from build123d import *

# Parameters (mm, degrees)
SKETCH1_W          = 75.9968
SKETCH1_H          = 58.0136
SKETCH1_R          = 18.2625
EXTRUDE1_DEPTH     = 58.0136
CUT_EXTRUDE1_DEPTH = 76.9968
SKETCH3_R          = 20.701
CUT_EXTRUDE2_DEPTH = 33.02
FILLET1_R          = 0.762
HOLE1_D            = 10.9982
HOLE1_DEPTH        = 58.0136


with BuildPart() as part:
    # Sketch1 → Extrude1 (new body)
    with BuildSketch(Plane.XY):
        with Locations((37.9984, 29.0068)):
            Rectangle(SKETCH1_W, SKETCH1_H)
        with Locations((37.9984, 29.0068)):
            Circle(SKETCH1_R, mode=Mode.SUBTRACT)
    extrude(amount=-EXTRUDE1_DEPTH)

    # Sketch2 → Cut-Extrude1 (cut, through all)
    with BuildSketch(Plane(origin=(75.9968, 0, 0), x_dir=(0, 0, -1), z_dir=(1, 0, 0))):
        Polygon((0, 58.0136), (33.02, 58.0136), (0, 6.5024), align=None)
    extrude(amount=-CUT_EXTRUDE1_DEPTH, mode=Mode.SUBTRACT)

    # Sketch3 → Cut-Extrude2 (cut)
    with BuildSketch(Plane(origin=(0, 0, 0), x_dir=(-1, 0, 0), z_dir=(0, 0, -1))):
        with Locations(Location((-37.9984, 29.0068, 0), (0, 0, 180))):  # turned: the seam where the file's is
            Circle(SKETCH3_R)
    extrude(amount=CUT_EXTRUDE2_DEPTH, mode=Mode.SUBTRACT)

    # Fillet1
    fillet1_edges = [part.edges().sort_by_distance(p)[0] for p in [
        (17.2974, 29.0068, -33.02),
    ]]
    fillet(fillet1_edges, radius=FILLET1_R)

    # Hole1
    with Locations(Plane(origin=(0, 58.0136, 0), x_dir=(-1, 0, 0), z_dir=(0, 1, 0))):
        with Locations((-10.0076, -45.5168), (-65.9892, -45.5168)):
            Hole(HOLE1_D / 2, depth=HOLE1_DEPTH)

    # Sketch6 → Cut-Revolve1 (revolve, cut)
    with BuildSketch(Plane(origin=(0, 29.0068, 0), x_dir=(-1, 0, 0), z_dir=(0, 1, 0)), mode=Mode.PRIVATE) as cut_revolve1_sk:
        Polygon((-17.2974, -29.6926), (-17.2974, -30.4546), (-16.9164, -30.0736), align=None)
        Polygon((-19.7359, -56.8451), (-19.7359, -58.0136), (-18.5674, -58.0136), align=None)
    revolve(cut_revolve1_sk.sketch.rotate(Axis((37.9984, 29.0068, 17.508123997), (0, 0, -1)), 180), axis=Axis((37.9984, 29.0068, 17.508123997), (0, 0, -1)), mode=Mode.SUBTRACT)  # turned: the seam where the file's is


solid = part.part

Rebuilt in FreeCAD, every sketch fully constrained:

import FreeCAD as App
import Part
import Sketcher

V = App.Vector
Q = App.Units.Quantity


def edges_at(feature, points):
    """Names of the edges that pass closest to the given points."""
    edges = feature.Shape.Edges
    near = lambda p: min(range(len(edges)), key=lambda i: edges[i].distToShape(Part.Vertex(*p))[0])
    return sorted({f"Edge{near(p) + 1}" for p in points})

doc = App.newDocument("Part")
body = doc.addObject("PartDesign::Body", "Body")

sketch1 = body.newObject("Sketcher::SketchObject", "Sketch")
sketch1.AttachmentSupport = (doc.getObject("XY_Plane"), [""])
sketch1.MapMode = "FlatFace"
sketch1.addGeometry([
    Part.LineSegment(V(0, 58, 0), V(0, 0, 0)),
    Part.LineSegment(V(0, 0, 0), V(76, 0, 0)),
    Part.LineSegment(V(76, 0, 0), V(76, 58, 0)),
    Part.LineSegment(V(76, 58, 0), V(0, 58, 0)),
    Part.Circle(V(38, 29, 0), V(0, 0, 1), 18),
], False)
sketch1.addConstraint([
    Sketcher.Constraint("Coincident", 0, 2, 1, 1),
    Sketcher.Constraint("Coincident", 1, 2, 2, 1),
    Sketcher.Constraint("Coincident", 2, 2, 3, 1),
    Sketcher.Constraint("Coincident", 3, 2, 0, 1),
    Sketcher.Constraint("Vertical", 0),
    Sketcher.Constraint("Horizontal", 1),
    Sketcher.Constraint("Vertical", 2),
    Sketcher.Constraint("Horizontal", 3),
    Sketcher.Constraint("Coincident", 0, 2, -1, 1),
    Sketcher.Constraint("Diameter", 4, Q("36.525 mm")),
    Sketcher.Constraint("DistanceX", 1, 1, 1, 2, Q("2.992 in")),
    Sketcher.Constraint("DistanceY", 0, 2, 0, 1, Q("2.284 in")),
    Sketcher.Constraint("DistanceX", -1, 1, 4, 3, Q("1.496 in")),
    Sketcher.Constraint("DistanceY", -1, 1, 4, 3, Q("1.142 in")),
])
pad1 = body.newObject("PartDesign::Pad", "Pad")
pad1.Profile = sketch1
pad1.Length = Q("2.284 in")
pad1.Reversed = True

sketch2 = body.newObject("Sketcher::SketchObject", "Sketch001")
sketch2.AttachmentSupport = (doc.getObject("YZ_Plane"), [""])
sketch2.MapMode = "FlatFace"
sketch2.AttachmentOffset = App.Placement(V(0, 0, 2.992 * 25.4), App.Rotation())
sketch2.addGeometry([
    Part.LineSegment(V(58, -33, 0), V(58, 0, 0)),
    Part.LineSegment(V(58, 0, 0), V(7, 0, 0)),
    Part.LineSegment(V(7, 0, 0), V(58, -33, 0)),
], False)
sketch2.addConstraint([
    Sketcher.Constraint("Coincident", 0, 2, 1, 1),
    Sketcher.Constraint("Coincident", 1, 2, 2, 1),
    Sketcher.Constraint("Coincident", 2, 2, 0, 1),
    Sketcher.Constraint("Vertical", 0),
    Sketcher.Constraint("Horizontal", 1),
    Sketcher.Constraint("PointOnObject", 0, 2, -1),
    Sketcher.Constraint("DistanceY", 0, 1, 0, 2, Q("1.3 in")),
    Sketcher.Constraint("DistanceX", 1, 2, 1, 1, Q("2.028 in")),
    Sketcher.Constraint("DistanceX", -1, 1, 0, 2, Q("2.284 in")),
])
pocket1 = body.newObject("PartDesign::Pocket", "Pocket")
pocket1.Profile = sketch2
pocket1.Type = "ThroughAll"

sketch3 = body.newObject("Sketcher::SketchObject", "Sketch002")
sketch3.AttachmentSupport = (doc.getObject("XY_Plane"), [""])
sketch3.MapMode = "FlatFace"
sketch3.addGeometry(Part.Circle(V(38, 29, 0), V(0, 0, 1), 21), False)
sketch3.addConstraint([
    Sketcher.Constraint("Diameter", 0, Q("1.63 in")),
    Sketcher.Constraint("DistanceX", -1, 1, 0, 3, Q("1.496 in")),
    Sketcher.Constraint("DistanceY", -1, 1, 0, 3, Q("1.142 in")),
])
pocket2 = body.newObject("PartDesign::Pocket", "Pocket001")
pocket2.Profile = sketch3
pocket2.Length = Q("1.3 in")
doc.recompute()

fillet = body.newObject("PartDesign::Fillet", "Fillet")
fillet.Base = (pocket2, edges_at(pocket2, [(17.297, 29.007, -33.02)]))
fillet.Radius = Q("0.03 in")

sketch4 = body.newObject("Sketcher::SketchObject", "Sketch003")
sketch4.AttachmentSupport = (doc.getObject("XZ_Plane"), [""])
sketch4.MapMode = "FlatFace"
sketch4.AttachmentOffset = App.Placement(V(0, 0, -2.284 * 25.4), App.Rotation())
sketch4.addGeometry([
    Part.Circle(V(10, -46, 0), V(0, 0, 1), 5),
    Part.Circle(V(66, -46, 0), V(0, 0, 1), 5),
], False)
sketch4.addConstraint([
    Sketcher.Constraint("Equal", 0, 1),
    Sketcher.Constraint("Horizontal", 0, 3, 1, 3),
    Sketcher.Constraint("Diameter", 0, Q("0.433 in")),
    Sketcher.Constraint("DistanceX", -1, 1, 0, 3, Q("0.394 in")),
    Sketcher.Constraint("DistanceY", 0, 3, -1, 1, Q("1.792 in")),
    Sketcher.Constraint("DistanceX", -1, 1, 1, 3, Q("2.598 in")),
])
doc.recompute()
hole = body.newObject("PartDesign::Hole", "Hole")
hole.Profile = sketch4
hole.ThreadType = "None"
hole.Diameter = Q("0.433 in")
hole.DepthType = "Dimension"
hole.Depth = Q("2.284 in")
hole.DrillPoint = "Flat"
hole.Reversed = True

sketch5 = body.newObject("Sketcher::SketchObject", "Sketch004")
sketch5.AttachmentSupport = (doc.getObject("XZ_Plane"), [""])
sketch5.MapMode = "FlatFace"
sketch5.AttachmentOffset = App.Placement(V(0, 0, -1.142 * 25.4), App.Rotation())
sketch5.addGeometry([
    Part.LineSegment(V(17.3, -29.7, 0), V(17.3, -30.5, 0)),
    Part.LineSegment(V(17.3, -30.5, 0), V(16.9, -30.1, 0)),
    Part.LineSegment(V(16.9, -30.1, 0), V(17.3, -29.7, 0)),
    Part.LineSegment(V(19.7, -56.8, 0), V(19.7, -58, 0)),
    Part.LineSegment(V(19.7, -58, 0), V(18.6, -58, 0)),
    Part.LineSegment(V(18.6, -58, 0), V(19.7, -56.8, 0)),
], False)
sketch5.addGeometry(Part.LineSegment(V(38, -29.7, 0), V(38, -58, 0)), True)
sketch5.addConstraint([
    Sketcher.Constraint("Coincident", 0, 2, 1, 1),
    Sketcher.Constraint("Coincident", 1, 2, 2, 1),
    Sketcher.Constraint("Coincident", 2, 2, 0, 1),
    Sketcher.Constraint("Coincident", 3, 2, 4, 1),
    Sketcher.Constraint("Coincident", 4, 2, 5, 1),
    Sketcher.Constraint("Coincident", 5, 2, 3, 1),
    Sketcher.Constraint("Vertical", 0),
    Sketcher.Constraint("Vertical", 3),
    Sketcher.Constraint("Horizontal", 4),
    Sketcher.Constraint("Vertical", 6),
    Sketcher.Constraint("Perpendicular", 1, 2),
    Sketcher.Constraint("Parallel", 2, 5),
    Sketcher.Constraint("Horizontal", 2, 2, 6, 1),
    Sketcher.Constraint("Horizontal", 4, 2, 6, 2),
    Sketcher.Constraint("Equal", 4, 3),
    Sketcher.Constraint("DistanceY", 0, 2, 0, 1, Q("0.03 in")),
    Sketcher.Constraint("DistanceY", 3, 2, 1, 2, Q("1.1 in")),
    Sketcher.Constraint("DistanceX", 0, 2, 4, 2, Q("0.05 in")),
    Sketcher.Constraint("DistanceX", 1, 2, 6, 1, Q("0.83 in")),
    Sketcher.Constraint("DistanceX", -1, 1, 0, 2, Q("0.681 in")),
    Sketcher.Constraint("DistanceY", 0, 2, -1, 1, Q("1.199 in")),
    Sketcher.Constraint("DistanceX", 4, 2, 4, 1, Q("1.1685 mm")),
])
groove = body.newObject("PartDesign::Groove", "Groove")
groove.Profile = sketch5
groove.ReferenceAxis = (sketch5, ["Axis0"])
groove.Angle = 360

doc.recompute()
